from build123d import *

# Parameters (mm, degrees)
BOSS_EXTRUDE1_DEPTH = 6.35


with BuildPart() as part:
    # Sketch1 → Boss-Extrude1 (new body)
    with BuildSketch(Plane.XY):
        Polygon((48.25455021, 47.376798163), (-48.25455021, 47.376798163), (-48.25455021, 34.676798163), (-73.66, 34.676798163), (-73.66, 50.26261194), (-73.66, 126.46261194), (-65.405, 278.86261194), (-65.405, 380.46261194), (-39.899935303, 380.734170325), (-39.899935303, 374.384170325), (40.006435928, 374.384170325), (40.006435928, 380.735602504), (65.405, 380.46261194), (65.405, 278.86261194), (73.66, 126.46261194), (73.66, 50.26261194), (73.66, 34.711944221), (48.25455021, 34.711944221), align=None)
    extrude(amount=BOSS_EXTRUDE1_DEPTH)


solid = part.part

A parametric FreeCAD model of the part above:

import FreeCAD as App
import Part
import Sketcher
Q = App.Units.Quantity

doc = App.newDocument("Part")
body = doc.addObject("PartDesign::Body", "Body")

# Sketch on XY plane
sketch1 = doc.addObject("Sketcher::SketchObject", "Sketch")
body.addObject(sketch1)
sketch1.AttachmentSupport = (doc.XY_Plane, [""])
sketch1.MapMode = "FlatFace"
sketch1.addGeometry([
    Part.LineSegment(App.Vector(-48.25455, 47.376798, 0), App.Vector(48.25455, 47.376798, 0)),  # 0
    Part.LineSegment(App.Vector(48.25455, 47.376798, 0), App.Vector(48.25455, 34.711944, 0)),  # 1
    Part.LineSegment(App.Vector(48.25455, 34.711944, 0), App.Vector(73.66, 34.711944, 0)),  # 2
    Part.LineSegment(App.Vector(73.66, 34.711944, 0), App.Vector(73.66, 126.462612, 0)),  # 3
    Part.LineSegment(App.Vector(73.66, 126.462612, 0), App.Vector(65.405, 278.862612, 0)),  # 4
    Part.LineSegment(App.Vector(65.405, 278.862612, 0), App.Vector(65.405, 380.462612, 0)),  # 5
    Part.LineSegment(App.Vector(65.405, 380.462612, 0), App.Vector(40.006436, 380.735603, 0)),  # 6
    Part.LineSegment(App.Vector(40.006436, 380.735603, 0), App.Vector(40.006436, 374.38417, 0)),  # 7
    Part.LineSegment(App.Vector(40.006436, 374.38417, 0), App.Vector(-39.899935, 374.38417, 0)),  # 8
    Part.LineSegment(App.Vector(-39.899935, 374.38417, 0), App.Vector(-39.899935, 380.73417, 0)),  # 9
    Part.LineSegment(App.Vector(-39.899935, 380.73417, 0), App.Vector(-65.405, 380.462612, 0)),  # 10
    Part.LineSegment(App.Vector(-65.405, 380.462612, 0), App.Vector(-65.405, 278.862612, 0)),  # 11
    Part.LineSegment(App.Vector(-65.405, 278.862612, 0), App.Vector(-73.66, 126.462612, 0)),  # 12
    Part.LineSegment(App.Vector(-73.66, 126.462612, 0), App.Vector(-73.66, 34.676798, 0)),  # 13
    Part.LineSegment(App.Vector(-73.66, 34.676798, 0), App.Vector(-48.25455, 34.676798, 0)),  # 14
    Part.LineSegment(App.Vector(-48.25455, 34.676798, 0), App.Vector(-48.25455, 47.376798, 0)),  # 15
], False)
sketch1.addConstraint([
    Sketcher.Constraint("Coincident", 0, 2, 1, 1),
    Sketcher.Constraint("Coincident", 1, 2, 2, 1),
    Sketcher.Constraint("Coincident", 2, 2, 3, 1),
    Sketcher.Constraint("Coincident", 3, 2, 4, 1),
    Sketcher.Constraint("Coincident", 4, 2, 5, 1),
    Sketcher.Constraint("Coincident", 5, 2, 6, 1),
    Sketcher.Constraint("Coincident", 6, 2, 7, 1),
    Sketcher.Constraint("Coincident", 7, 2, 8, 1),
    Sketcher.Constraint("Coincident", 8, 2, 9, 1),
    Sketcher.Constraint("Coincident", 9, 2, 10, 1),
    Sketcher.Constraint("Coincident", 10, 2, 11, 1),
    Sketcher.Constraint("Coincident", 11, 2, 12, 1),
    Sketcher.Constraint("Coincident", 12, 2, 13, 1),
    Sketcher.Constraint("Coincident", 13, 2, 14, 1),
    Sketcher.Constraint("Coincident", 14, 2, 15, 1),
    Sketcher.Constraint("Coincident", 15, 2, 0, 1),
    Sketcher.Constraint("Horizontal", 0),
    Sketcher.Constraint("Vertical", 1),
    Sketcher.Constraint("Horizontal", 2),
    Sketcher.Constraint("Vertical", 3),
    Sketcher.Constraint("Vertical", 5),
    Sketcher.Constraint("Vertical", 7),
    Sketcher.Constraint("Horizontal", 8),
    Sketcher.Constraint("Vertical", 9),
    Sketcher.Constraint("Vertical", 11),
    Sketcher.Constraint("Vertical", 13),
    Sketcher.Constraint("Horizontal", 14),
    Sketcher.Constraint("Vertical", 15),
    Sketcher.Constraint("Symmetric", 5, 2, 10, 2, -2),
    Sketcher.Constraint("Symmetric", 3, 2, 12, 2, -2),
    Sketcher.Constraint("Horizontal", 4, 2, 11, 2),
    Sketcher.Constraint("Equal", 2, 14),
    Sketcher.Constraint("DistanceY", 5, 1, 5, 2, Q("4 in")),
    Sketcher.Constraint("DistanceY", 15, 1, 15, 2, Q("0.5 in")),
    Sketcher.Constraint("DistanceY", 3, 2, 4, 2, Q("6 in")),
    Sketcher.Constraint("DistanceY", 9, 1, 9, 2, Q("0.25 in")),
    Sketcher.Constraint("DistanceX", -1, 1, 2, 2, Q("2.9 in")),
    Sketcher.Constraint("Angle", 10, Q("-179.389981 deg")),
    Sketcher.Constraint("DistanceX", 10, 2, 5, 2, Q("5.15 in")),
    Sketcher.Constraint("DistanceX", 0, 1, 0, 2, Q("96.5091 mm")),
    Sketcher.Constraint("DistanceX", 8, 2, 8, 1, Q("79.906371 mm")),
    Sketcher.Constraint("DistanceY", -1, 1, 0, 2, Q("47.376798 mm")),
    Sketcher.Constraint("Distance", 6, Q("25.400031 mm")),
    Sketcher.Constraint("Distance", 10, Q("25.50651 mm")),
    Sketcher.Constraint("DistanceY", 1, 2, 1, 1, Q("12.664854 mm")),
    Sketcher.Constraint("DistanceY", 3, 1, 3, 2, Q("91.750668 mm")),
])
pad1 = doc.addObject("PartDesign::Pad", "Pad")
body.addObject(pad1)
pad1.Profile = sketch1
pad1.Length = Q("0.25 in")

doc.recompute()
